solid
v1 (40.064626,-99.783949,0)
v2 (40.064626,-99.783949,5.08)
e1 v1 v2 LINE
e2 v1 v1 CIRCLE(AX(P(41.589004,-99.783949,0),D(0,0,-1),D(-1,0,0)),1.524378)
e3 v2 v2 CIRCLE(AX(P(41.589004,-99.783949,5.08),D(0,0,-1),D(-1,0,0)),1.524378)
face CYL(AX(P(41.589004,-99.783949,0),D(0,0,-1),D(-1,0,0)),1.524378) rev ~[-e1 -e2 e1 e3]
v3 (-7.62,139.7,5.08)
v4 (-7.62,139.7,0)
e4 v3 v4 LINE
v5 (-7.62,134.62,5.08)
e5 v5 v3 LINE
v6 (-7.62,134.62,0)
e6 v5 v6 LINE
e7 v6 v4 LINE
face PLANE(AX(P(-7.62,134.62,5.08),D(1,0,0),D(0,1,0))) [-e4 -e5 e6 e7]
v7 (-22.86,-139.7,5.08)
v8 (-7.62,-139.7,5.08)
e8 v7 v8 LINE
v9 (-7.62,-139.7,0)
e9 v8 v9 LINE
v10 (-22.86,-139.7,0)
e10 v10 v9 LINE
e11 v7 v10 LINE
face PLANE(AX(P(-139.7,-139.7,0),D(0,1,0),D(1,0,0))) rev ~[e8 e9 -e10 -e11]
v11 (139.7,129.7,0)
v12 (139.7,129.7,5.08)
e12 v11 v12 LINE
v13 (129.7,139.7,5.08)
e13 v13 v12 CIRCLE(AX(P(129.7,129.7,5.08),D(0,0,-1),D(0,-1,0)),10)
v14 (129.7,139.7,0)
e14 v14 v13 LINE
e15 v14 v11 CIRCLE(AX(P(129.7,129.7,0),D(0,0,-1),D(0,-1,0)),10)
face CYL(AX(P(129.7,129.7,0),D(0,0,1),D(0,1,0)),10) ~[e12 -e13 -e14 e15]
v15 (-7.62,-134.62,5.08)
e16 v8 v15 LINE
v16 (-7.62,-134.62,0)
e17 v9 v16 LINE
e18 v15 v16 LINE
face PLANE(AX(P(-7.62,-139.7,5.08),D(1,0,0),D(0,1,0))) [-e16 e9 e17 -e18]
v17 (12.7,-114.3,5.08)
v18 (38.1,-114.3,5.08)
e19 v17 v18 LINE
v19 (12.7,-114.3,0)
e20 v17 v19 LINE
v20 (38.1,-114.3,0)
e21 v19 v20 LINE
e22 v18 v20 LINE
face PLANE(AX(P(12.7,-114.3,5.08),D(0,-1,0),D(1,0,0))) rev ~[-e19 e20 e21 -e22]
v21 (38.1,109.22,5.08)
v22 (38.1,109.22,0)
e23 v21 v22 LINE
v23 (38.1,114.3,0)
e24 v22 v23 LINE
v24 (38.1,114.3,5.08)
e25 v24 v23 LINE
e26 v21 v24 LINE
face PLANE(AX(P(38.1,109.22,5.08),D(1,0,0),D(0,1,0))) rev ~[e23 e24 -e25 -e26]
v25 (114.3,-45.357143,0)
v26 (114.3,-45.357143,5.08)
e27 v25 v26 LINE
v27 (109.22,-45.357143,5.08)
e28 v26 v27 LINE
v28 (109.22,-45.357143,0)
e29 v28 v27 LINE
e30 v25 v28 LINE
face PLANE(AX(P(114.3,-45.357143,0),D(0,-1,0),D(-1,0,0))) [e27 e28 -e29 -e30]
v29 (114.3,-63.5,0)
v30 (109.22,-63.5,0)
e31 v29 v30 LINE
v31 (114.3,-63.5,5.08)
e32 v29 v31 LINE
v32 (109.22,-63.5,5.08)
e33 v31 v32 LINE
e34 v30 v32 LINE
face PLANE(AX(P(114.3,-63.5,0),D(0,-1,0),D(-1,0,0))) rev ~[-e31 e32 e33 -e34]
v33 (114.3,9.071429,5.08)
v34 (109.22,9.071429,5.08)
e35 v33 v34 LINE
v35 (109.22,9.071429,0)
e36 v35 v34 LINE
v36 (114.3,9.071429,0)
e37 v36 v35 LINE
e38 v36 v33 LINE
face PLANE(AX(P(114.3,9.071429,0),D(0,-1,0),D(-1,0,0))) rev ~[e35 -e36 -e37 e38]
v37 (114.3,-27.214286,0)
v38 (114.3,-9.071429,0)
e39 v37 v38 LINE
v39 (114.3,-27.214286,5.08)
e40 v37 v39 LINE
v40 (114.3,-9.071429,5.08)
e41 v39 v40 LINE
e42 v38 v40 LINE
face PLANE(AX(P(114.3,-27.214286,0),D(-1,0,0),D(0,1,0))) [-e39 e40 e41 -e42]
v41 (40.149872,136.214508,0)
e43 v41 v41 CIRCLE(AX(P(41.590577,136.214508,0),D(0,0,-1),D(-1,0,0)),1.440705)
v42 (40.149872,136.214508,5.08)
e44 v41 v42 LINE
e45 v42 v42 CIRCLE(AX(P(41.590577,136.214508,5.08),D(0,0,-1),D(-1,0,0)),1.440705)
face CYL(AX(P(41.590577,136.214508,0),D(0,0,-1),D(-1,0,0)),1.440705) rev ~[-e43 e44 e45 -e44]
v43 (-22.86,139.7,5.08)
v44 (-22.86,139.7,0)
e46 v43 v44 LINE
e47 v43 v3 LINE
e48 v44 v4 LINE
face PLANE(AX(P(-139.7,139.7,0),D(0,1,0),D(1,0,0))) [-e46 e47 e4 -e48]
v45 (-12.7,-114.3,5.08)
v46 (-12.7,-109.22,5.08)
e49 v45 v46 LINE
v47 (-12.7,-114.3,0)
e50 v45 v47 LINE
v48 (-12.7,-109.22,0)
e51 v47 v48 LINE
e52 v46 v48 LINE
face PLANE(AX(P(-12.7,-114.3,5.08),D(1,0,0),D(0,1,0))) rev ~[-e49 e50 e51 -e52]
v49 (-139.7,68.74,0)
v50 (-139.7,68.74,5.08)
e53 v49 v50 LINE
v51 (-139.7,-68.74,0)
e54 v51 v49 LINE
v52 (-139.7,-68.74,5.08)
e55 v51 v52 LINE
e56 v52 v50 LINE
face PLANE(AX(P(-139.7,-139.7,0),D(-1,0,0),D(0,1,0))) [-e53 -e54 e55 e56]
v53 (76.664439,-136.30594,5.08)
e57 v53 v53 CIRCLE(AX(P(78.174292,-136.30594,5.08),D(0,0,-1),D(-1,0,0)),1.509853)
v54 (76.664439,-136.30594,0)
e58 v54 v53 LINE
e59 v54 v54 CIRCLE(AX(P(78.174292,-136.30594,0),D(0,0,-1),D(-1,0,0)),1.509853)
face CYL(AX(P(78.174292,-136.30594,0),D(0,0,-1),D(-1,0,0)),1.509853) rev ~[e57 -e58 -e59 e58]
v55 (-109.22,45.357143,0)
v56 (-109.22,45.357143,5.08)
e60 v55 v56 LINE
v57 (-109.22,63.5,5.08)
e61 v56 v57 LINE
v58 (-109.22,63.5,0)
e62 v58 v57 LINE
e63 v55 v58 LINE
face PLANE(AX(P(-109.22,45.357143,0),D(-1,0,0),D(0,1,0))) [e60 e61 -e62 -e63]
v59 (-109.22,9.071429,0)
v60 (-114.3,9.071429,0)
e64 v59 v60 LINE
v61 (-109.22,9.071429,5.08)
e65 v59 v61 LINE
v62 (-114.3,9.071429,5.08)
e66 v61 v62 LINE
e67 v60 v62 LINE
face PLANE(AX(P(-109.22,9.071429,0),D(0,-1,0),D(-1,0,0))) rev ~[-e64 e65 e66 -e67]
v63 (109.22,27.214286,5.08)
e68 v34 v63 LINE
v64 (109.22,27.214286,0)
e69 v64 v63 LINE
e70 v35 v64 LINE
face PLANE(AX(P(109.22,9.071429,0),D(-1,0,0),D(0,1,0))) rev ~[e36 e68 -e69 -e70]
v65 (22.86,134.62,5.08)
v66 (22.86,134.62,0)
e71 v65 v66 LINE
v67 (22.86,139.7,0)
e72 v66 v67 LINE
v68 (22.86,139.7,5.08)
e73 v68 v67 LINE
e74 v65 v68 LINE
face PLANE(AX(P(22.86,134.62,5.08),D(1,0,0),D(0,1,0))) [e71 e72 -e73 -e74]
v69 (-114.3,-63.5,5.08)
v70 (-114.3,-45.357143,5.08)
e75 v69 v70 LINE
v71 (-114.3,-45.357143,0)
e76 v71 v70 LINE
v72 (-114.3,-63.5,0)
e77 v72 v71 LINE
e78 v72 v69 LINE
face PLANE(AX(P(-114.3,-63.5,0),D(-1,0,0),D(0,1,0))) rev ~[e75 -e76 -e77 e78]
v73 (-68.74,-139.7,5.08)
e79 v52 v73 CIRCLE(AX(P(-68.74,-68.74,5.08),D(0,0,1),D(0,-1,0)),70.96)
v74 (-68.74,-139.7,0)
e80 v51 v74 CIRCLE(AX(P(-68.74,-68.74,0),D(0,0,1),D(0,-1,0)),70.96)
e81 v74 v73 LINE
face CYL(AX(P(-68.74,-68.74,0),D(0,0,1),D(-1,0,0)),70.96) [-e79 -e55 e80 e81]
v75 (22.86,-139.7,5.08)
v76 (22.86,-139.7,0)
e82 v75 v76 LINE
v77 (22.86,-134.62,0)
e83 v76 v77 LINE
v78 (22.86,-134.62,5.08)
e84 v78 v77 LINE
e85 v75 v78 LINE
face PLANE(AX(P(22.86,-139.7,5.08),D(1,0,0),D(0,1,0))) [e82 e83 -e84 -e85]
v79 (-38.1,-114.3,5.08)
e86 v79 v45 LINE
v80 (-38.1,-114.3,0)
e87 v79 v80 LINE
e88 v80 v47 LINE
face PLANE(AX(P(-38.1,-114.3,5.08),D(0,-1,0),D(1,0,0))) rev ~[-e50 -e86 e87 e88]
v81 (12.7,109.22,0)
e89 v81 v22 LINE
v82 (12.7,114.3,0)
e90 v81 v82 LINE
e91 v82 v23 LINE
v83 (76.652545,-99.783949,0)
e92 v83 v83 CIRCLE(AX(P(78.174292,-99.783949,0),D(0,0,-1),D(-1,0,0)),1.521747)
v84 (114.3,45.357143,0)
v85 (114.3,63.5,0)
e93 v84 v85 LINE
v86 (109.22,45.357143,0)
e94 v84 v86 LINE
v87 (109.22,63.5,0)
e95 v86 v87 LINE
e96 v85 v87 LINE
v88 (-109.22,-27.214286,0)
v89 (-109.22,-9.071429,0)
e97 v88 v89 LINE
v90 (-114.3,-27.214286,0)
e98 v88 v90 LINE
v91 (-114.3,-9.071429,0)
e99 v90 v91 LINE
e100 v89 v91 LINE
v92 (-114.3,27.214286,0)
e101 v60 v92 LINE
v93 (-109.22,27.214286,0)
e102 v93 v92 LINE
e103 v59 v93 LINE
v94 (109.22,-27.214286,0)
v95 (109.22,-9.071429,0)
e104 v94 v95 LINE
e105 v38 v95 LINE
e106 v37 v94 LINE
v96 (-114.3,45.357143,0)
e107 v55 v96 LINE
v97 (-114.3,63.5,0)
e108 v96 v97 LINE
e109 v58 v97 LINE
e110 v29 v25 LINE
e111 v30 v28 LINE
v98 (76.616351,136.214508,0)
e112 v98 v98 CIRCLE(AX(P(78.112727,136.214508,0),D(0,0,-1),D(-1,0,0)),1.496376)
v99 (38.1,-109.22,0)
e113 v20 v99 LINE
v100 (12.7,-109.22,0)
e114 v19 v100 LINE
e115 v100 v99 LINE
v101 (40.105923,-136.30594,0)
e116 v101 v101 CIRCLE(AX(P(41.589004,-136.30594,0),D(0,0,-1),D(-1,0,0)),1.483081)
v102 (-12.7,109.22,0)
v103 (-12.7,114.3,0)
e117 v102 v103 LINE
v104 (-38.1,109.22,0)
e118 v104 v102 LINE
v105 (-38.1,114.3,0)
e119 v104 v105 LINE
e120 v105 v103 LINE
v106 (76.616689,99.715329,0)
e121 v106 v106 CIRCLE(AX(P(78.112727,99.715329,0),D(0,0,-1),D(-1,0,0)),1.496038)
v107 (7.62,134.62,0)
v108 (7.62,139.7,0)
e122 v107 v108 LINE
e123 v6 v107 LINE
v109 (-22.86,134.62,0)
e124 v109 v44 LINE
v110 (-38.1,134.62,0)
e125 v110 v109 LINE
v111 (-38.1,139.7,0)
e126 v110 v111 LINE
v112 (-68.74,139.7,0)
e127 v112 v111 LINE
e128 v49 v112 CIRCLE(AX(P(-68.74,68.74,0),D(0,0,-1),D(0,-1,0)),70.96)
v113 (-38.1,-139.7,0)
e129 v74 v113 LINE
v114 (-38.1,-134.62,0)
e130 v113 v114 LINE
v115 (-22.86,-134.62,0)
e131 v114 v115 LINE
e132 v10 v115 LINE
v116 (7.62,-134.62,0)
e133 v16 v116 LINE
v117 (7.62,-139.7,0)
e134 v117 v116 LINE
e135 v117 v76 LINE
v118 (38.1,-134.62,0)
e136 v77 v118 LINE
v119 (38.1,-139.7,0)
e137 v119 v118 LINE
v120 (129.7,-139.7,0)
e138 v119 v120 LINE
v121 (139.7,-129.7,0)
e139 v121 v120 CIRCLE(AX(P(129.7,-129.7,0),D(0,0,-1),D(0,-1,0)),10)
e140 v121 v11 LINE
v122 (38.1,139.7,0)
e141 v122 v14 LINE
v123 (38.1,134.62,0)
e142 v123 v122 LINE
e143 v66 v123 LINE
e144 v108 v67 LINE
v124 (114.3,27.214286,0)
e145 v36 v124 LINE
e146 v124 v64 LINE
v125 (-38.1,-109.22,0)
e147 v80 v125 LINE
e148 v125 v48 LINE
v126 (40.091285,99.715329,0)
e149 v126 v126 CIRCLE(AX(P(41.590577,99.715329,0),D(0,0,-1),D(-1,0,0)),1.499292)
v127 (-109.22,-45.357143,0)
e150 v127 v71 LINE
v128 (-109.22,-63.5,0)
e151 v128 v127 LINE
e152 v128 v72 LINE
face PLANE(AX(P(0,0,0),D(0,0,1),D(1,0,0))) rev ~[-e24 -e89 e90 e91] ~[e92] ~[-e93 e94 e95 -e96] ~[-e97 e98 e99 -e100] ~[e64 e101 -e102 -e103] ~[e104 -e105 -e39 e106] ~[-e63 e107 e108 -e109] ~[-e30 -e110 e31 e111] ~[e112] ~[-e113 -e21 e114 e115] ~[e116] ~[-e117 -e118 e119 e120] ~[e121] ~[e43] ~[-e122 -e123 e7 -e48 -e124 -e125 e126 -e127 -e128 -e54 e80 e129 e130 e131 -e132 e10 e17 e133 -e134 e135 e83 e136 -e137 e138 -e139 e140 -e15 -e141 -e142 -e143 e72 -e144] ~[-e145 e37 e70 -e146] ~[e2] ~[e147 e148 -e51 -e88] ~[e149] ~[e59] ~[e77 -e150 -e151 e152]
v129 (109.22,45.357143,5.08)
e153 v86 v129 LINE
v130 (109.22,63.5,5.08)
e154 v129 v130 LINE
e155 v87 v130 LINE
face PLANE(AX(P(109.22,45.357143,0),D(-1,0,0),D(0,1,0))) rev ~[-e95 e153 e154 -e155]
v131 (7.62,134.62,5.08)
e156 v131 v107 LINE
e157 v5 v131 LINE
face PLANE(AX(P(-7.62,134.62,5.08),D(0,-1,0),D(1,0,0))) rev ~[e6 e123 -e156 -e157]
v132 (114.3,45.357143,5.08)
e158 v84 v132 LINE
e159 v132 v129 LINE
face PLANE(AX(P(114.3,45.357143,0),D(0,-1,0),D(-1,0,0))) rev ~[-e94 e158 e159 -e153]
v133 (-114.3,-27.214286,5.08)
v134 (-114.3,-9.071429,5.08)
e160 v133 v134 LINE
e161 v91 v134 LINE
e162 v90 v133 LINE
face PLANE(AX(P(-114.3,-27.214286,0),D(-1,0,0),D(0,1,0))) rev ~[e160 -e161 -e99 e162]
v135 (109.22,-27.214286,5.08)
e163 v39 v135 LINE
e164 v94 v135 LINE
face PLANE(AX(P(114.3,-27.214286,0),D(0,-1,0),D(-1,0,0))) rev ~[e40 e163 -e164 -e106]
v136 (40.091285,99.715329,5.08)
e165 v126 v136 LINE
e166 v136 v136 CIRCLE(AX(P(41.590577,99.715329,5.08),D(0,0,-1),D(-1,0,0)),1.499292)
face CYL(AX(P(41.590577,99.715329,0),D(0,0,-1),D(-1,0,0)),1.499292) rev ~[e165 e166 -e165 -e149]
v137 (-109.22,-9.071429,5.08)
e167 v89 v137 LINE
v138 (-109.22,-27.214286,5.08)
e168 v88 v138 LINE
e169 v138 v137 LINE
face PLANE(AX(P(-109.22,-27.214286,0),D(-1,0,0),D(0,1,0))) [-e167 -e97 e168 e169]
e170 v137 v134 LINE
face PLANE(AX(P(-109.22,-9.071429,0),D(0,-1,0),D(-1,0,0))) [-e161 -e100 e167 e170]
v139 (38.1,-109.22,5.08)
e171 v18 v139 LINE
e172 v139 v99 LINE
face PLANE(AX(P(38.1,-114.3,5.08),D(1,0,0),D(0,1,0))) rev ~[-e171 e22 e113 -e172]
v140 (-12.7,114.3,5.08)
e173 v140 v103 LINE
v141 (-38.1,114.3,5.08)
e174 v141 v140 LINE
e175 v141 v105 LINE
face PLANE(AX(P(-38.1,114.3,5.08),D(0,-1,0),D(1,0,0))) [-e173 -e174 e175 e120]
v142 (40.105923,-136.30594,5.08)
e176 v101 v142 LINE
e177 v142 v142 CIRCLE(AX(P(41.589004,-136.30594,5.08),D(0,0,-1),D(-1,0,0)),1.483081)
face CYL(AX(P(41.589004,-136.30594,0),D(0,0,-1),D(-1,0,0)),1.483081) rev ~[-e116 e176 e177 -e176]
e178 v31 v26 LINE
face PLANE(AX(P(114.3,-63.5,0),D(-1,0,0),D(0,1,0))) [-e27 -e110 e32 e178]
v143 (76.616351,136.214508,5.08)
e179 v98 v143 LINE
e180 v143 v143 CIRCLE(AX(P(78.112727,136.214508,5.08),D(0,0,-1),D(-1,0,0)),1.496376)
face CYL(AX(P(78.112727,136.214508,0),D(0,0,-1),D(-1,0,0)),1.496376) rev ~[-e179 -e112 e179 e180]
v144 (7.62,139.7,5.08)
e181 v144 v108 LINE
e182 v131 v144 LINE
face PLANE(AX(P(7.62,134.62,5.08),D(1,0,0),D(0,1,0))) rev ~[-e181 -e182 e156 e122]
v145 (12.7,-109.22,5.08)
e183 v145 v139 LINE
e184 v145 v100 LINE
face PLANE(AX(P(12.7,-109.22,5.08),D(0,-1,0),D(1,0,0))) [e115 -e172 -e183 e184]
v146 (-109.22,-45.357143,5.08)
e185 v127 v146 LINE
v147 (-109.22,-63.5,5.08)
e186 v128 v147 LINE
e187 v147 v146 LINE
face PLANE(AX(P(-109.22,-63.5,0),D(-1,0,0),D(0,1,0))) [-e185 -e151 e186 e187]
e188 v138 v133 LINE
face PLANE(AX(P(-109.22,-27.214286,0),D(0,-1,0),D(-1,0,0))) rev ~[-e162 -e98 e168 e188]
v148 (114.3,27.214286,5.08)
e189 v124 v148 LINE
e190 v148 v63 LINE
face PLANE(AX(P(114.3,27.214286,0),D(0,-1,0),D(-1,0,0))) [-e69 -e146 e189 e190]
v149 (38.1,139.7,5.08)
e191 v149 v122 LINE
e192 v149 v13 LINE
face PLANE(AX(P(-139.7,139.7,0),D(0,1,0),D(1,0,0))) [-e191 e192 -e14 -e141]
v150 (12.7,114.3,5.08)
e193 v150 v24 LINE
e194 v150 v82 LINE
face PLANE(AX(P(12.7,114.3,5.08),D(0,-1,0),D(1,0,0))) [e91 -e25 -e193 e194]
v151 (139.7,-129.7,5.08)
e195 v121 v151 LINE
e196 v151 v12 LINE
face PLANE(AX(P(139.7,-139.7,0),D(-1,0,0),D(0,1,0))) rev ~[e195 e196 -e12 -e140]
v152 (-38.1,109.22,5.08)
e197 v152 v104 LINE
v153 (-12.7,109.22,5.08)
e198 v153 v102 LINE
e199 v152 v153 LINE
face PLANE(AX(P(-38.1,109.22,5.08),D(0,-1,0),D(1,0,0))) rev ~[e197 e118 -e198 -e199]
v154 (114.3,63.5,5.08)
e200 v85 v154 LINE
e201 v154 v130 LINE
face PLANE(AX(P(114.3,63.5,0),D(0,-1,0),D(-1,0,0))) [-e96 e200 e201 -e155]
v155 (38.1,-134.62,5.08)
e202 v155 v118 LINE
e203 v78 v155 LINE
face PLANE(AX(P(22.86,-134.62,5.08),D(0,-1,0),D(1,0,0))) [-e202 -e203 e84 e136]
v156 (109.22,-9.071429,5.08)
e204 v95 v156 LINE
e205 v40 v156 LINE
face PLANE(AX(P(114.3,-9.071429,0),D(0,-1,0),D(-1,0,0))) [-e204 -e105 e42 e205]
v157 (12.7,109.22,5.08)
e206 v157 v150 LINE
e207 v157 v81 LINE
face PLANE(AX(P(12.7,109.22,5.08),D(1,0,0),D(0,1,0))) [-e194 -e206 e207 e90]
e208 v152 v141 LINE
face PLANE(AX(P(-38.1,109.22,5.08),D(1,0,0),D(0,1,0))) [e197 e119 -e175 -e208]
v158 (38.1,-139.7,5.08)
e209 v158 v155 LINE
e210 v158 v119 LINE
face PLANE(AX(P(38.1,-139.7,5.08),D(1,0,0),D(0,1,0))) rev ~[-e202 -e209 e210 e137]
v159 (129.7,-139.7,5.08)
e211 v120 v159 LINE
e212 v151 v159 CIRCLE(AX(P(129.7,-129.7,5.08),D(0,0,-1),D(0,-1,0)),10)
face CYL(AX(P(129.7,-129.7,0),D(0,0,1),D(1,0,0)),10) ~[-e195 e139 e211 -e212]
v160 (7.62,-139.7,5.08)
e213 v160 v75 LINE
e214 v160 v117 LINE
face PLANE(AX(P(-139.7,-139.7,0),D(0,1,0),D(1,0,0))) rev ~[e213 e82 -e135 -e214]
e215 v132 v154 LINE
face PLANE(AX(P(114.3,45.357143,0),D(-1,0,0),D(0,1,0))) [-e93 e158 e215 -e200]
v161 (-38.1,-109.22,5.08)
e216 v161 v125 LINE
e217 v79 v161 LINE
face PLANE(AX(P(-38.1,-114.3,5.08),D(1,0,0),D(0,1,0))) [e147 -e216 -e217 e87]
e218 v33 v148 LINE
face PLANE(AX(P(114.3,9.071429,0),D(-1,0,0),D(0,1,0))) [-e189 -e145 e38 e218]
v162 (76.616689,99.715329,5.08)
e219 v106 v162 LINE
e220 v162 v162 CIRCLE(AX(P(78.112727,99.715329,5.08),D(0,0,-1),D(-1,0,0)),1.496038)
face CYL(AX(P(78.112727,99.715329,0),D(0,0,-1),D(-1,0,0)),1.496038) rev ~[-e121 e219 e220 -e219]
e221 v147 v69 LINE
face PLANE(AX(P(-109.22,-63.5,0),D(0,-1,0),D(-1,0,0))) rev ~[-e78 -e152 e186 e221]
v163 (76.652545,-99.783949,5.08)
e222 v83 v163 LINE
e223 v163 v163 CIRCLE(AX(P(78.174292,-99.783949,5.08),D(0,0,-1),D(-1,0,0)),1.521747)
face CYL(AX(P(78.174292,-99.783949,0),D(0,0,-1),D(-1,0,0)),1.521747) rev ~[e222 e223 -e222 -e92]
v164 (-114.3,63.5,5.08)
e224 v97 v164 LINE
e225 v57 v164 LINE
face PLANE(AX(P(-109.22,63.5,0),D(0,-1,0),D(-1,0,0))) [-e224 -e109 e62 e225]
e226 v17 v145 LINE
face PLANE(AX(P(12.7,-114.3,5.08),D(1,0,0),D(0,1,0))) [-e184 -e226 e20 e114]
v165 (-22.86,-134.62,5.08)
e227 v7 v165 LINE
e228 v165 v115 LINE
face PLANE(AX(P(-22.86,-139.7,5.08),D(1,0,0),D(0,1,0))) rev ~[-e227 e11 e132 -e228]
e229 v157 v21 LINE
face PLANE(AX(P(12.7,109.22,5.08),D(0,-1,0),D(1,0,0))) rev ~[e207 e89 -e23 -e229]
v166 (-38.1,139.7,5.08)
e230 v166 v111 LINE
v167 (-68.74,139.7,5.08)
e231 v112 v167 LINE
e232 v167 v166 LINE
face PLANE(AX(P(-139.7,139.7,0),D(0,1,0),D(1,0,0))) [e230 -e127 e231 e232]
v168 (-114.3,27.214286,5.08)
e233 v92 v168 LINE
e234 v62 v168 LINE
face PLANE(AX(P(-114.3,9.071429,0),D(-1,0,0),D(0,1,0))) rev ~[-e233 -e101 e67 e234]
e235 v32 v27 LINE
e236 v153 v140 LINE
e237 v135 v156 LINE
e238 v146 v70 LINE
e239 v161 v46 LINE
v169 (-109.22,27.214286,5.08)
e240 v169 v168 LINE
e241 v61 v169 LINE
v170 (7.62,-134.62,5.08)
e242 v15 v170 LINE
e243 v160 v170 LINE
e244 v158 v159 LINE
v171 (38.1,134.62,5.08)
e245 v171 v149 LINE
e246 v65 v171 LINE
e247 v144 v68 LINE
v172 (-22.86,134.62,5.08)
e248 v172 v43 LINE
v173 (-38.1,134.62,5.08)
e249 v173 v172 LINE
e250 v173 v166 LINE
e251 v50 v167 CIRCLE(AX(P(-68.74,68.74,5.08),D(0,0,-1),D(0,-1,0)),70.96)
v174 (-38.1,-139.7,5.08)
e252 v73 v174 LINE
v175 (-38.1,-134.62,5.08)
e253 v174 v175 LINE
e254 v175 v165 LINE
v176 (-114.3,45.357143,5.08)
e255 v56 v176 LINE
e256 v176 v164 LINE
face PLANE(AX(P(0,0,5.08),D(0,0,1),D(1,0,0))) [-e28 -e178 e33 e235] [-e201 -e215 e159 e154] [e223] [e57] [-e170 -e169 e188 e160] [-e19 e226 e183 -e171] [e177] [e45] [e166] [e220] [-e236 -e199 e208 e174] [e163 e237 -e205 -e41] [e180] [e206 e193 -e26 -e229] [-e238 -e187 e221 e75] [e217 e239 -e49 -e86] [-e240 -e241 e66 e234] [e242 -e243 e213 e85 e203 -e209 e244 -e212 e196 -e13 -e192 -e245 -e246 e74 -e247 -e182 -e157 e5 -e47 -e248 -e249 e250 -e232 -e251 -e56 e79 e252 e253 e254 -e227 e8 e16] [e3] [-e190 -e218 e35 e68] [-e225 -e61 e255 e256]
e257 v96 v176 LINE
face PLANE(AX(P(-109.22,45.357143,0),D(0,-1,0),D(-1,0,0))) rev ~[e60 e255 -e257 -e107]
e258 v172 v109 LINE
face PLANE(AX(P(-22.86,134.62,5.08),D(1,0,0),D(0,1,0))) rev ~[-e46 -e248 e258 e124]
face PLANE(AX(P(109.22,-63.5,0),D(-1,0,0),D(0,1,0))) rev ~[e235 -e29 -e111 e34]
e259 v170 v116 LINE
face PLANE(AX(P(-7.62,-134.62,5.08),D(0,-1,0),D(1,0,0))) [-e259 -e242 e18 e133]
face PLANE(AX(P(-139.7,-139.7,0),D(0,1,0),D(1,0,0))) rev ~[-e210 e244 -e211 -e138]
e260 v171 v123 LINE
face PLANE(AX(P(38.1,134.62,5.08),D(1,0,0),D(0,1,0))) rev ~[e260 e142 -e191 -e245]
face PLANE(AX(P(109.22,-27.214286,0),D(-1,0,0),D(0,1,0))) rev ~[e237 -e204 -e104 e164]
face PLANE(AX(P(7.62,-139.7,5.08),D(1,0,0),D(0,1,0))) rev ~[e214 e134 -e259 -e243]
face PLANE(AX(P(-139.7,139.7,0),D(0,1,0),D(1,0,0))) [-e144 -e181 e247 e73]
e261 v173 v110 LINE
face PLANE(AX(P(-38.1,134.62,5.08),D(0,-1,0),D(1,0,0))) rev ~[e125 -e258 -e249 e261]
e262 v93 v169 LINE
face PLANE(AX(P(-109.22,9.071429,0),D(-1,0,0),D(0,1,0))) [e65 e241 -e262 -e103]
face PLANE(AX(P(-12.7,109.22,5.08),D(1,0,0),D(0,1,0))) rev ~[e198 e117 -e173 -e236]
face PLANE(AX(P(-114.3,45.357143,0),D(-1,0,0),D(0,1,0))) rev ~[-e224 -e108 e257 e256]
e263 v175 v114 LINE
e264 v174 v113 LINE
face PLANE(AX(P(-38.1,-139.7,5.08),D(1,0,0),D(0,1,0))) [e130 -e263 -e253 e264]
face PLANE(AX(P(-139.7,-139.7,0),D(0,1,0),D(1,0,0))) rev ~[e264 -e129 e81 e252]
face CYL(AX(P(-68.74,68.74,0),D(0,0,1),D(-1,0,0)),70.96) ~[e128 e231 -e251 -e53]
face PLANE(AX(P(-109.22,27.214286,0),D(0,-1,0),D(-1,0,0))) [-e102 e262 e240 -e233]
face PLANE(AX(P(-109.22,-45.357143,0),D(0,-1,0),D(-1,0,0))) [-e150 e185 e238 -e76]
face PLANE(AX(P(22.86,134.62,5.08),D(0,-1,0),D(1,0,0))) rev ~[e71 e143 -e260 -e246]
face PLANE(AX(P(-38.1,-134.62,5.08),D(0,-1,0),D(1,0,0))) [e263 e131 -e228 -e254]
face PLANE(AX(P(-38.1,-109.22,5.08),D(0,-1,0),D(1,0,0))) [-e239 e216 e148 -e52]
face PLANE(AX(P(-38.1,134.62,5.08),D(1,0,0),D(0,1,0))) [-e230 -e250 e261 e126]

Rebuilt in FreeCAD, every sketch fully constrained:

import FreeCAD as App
import Part
import Sketcher
from FreeCAD import Vector
Q = App.Units.Quantity


def edges_at(feature, points):
    """Names of the edges that pass closest to the given points."""
    edges = feature.Shape.Edges
    near = lambda p: min(range(len(edges)), key=lambda i: edges[i].distToShape(Part.Vertex(*p))[0])
    return sorted({f"Edge{near(p) + 1}" for p in points})

doc = App.newDocument("Part")
body = doc.addObject("PartDesign::Body", "Body")

# Sketch on XY plane
sketch1 = body.newObject("Sketcher::SketchObject", "Sketch")
sketch1.AttachmentSupport = (doc.getObject("XY_Plane"), [""])
sketch1.MapMode = "FlatFace"
sketch1.addGeometry([
    Part.LineSegment(Vector(-139.7, 139.7, 0), Vector(-139.7, -139.7, 0)),
    Part.LineSegment(Vector(-139.7, -139.7, 0), Vector(139.7, -139.7, 0)),
    Part.LineSegment(Vector(139.7, -139.7, 0), Vector(139.7, 139.7, 0)),
    Part.LineSegment(Vector(139.7, 139.7, 0), Vector(-139.7, 139.7, 0)),
], False)
sketch1.addConstraint([
    Sketcher.Constraint("Coincident", 0, 2, 1, 1),
    Sketcher.Constraint("Coincident", 1, 2, 2, 1),
    Sketcher.Constraint("Coincident", 2, 2, 3, 1),
    Sketcher.Constraint("Coincident", 3, 2, 0, 1),
    Sketcher.Constraint("Vertical", 0),
    Sketcher.Constraint("Horizontal", 1),
    Sketcher.Constraint("Vertical", 2),
    Sketcher.Constraint("Horizontal", 3),
    Sketcher.Constraint("Symmetric", 0, 2, 2, 2, -1, 1),
    Sketcher.Constraint("Equal", 3, 0),
    Sketcher.Constraint("DistanceX", 1, 1, 1, 2, Q("11 in")),
])
pad1 = body.newObject("PartDesign::Pad", "Pad")
pad1.Profile = sketch1
pad1.Length = Q("0.2 in")
doc.recompute()

fillet = body.newObject("PartDesign::Fillet", "Fillet")
fillet.Base = (pad1, edges_at(pad1, [(-139.7, 139.7, 2.54)]))
fillet.Radius = 70.96
doc.recompute()

fillet2 = body.newObject("PartDesign::Fillet", "Fillet001")
fillet2.Base = (fillet, edges_at(fillet, [(-139.7, -139.7, 2.54)]))
fillet2.Radius = 70.96
doc.recompute()

fillet3 = body.newObject("PartDesign::Fillet", "Fillet002")
fillet3.Base = (fillet2, edges_at(fillet2, [(139.7, 139.7, 2.54)]))
fillet3.Radius = 10
doc.recompute()

fillet4 = body.newObject("PartDesign::Fillet", "Fillet003")
fillet4.Base = (fillet3, edges_at(fillet3, [(139.7, -139.7, 2.54)]))
fillet4.Radius = 10

# Sketch on XY plane
sketch2 = body.newObject("Sketcher::SketchObject", "Sketch001")
sketch2.AttachmentSupport = (doc.getObject("XY_Plane"), [""])
sketch2.MapMode = "FlatFace"
sketch2.AttachmentOffset = App.Placement(Vector(0, 0, 0.2 * 25.4), App.Rotation())
sketch2.addGeometry([
    Part.LineSegment(Vector(-38.1, -109.22, 0), Vector(-38.1, -114.3, 0)),  # 0
    Part.LineSegment(Vector(-38.1, -114.3, 0), Vector(-12.7, -114.3, 0)),  # 1
    Part.LineSegment(Vector(-12.7, -114.3, 0), Vector(-12.7, -109.22, 0)),  # 2
    Part.LineSegment(Vector(-12.7, -109.22, 0), Vector(-38.1, -109.22, 0)),  # 3
    Part.LineSegment(Vector(12.7, -109.22, 0), Vector(12.7, -114.3, 0)),  # 4
    Part.LineSegment(Vector(12.7, -114.3, 0), Vector(38.1, -114.3, 0)),  # 5
    Part.LineSegment(Vector(38.1, -114.3, 0), Vector(38.1, -109.22, 0)),  # 6
    Part.LineSegment(Vector(38.1, -109.22, 0), Vector(12.7, -109.22, 0)),  # 7
], False)
sketch2.addConstraint([
    Sketcher.Constraint("Coincident", 0, 2, 1, 1),
    Sketcher.Constraint("Coincident", 1, 2, 2, 1),
    Sketcher.Constraint("Coincident", 2, 2, 3, 1),
    Sketcher.Constraint("Coincident", 3, 2, 0, 1),
    Sketcher.Constraint("Coincident", 4, 2, 5, 1),
    Sketcher.Constraint("Coincident", 5, 2, 6, 1),
    Sketcher.Constraint("Coincident", 6, 2, 7, 1),
    Sketcher.Constraint("Coincident", 7, 2, 4, 1),
    Sketcher.Constraint("Vertical", 0),
    Sketcher.Constraint("Horizontal", 1),
    Sketcher.Constraint("Vertical", 2),
    Sketcher.Constraint("Horizontal", 3),
    Sketcher.Constraint("Vertical", 4),
    Sketcher.Constraint("Horizontal", 5),
    Sketcher.Constraint("Vertical", 6),
    Sketcher.Constraint("Horizontal", 7),
    Sketcher.Constraint("Symmetric", 1, 2, 4, 2, -2),
    Sketcher.Constraint("Symmetric", 3, 2, 6, 2, -2),
    Sketcher.Constraint("DistanceX", 1, 1, 1, 2, Q("1 in")),
    Sketcher.Constraint("DistanceY", 0, 2, 0, 1, Q("0.2 in")),
    Sketcher.Constraint("DistanceX", 1, 2, 4, 2, Q("1 in")),
    Sketcher.Constraint("DistanceY", 0, 2, -1, 1, Q("4.5 in")),
])
pocket1 = body.newObject("PartDesign::Pocket", "Pocket")
pocket1.Profile = sketch2
pocket1.Length = Q("0.3 in")

# Sketch on XY plane
sketch3 = body.newObject("Sketcher::SketchObject", "Sketch002")
sketch3.AttachmentSupport = (doc.getObject("XY_Plane"), [""])
sketch3.MapMode = "FlatFace"
sketch3.AttachmentOffset = App.Placement(Vector(0, 0, 0.2 * 25.4), App.Rotation())
sketch3.addGeometry([
    Part.LineSegment(Vector(-38.1, -134.62, 0), Vector(-38.1, -139.7, 0)),  # 0
    Part.LineSegment(Vector(-38.1, -139.7, 0), Vector(-22.86, -139.7, 0)),  # 1
    Part.LineSegment(Vector(-22.86, -139.7, 0), Vector(-22.86, -134.62, 0)),  # 2
    Part.LineSegment(Vector(-22.86, -134.62, 0), Vector(-38.1, -134.62, 0)),  # 3
    Part.LineSegment(Vector(-7.62, -134.62, 0), Vector(-7.62, -139.7, 0)),  # 4
    Part.LineSegment(Vector(-7.62, -139.7, 0), Vector(7.62, -139.7, 0)),  # 5
    Part.LineSegment(Vector(7.62, -139.7, 0), Vector(7.62, -134.62, 0)),  # 6
    Part.LineSegment(Vector(7.62, -134.62, 0), Vector(-7.62, -134.62, 0)),  # 7
    Part.LineSegment(Vector(22.86, -134.62, 0), Vector(22.86, -139.7, 0)),  # 8
    Part.LineSegment(Vector(22.86, -139.7, 0), Vector(38.1, -139.7, 0)),  # 9
    Part.LineSegment(Vector(38.1, -139.7, 0), Vector(38.1, -134.62, 0)),  # 10
    Part.LineSegment(Vector(38.1, -134.62, 0), Vector(22.86, -134.62, 0)),  # 11
], False)
sketch3.addConstraint([
    Sketcher.Constraint("Coincident", 0, 2, 1, 1),
    Sketcher.Constraint("Coincident", 1, 2, 2, 1),
    Sketcher.Constraint("Coincident", 2, 2, 3, 1),
    Sketcher.Constraint("Coincident", 3, 2, 0, 1),
    Sketcher.Constraint("Coincident", 4, 2, 5, 1),
    Sketcher.Constraint("Coincident", 5, 2, 6, 1),
    Sketcher.Constraint("Coincident", 6, 2, 7, 1),
    Sketcher.Constraint("Coincident", 7, 2, 4, 1),
    Sketcher.Constraint("Coincident", 8, 2, 9, 1),
    Sketcher.Constraint("Coincident", 9, 2, 10, 1),
    Sketcher.Constraint("Coincident", 10, 2, 11, 1),
    Sketcher.Constraint("Coincident", 11, 2, 8, 1),
    Sketcher.Constraint("Vertical", 0),
    Sketcher.Constraint("Horizontal", 1),
    Sketcher.Constraint("Vertical", 2),
    Sketcher.Constraint("Horizontal", 3),
    Sketcher.Constraint("Vertical", 4),
    Sketcher.Constraint("Horizontal", 5),
    Sketcher.Constraint("Vertical", 6),
    Sketcher.Constraint("Horizontal", 7),
    Sketcher.Constraint("Vertical", 8),
    Sketcher.Constraint("Horizontal", 9),
    Sketcher.Constraint("Vertical", 10),
    Sketcher.Constraint("Horizontal", 11),
    Sketcher.Constraint("Symmetric", 1, 2, 8, 2, -2),
    Sketcher.Constraint("Symmetric", 3, 2, 10, 2, -2),
    Sketcher.Constraint("Horizontal", 1, 2, 4, 2),
    Sketcher.Constraint("Horizontal", 3, 2, 6, 2),
    Sketcher.Constraint("Equal", 3, 5),
    Sketcher.Constraint("DistanceX", 1, 1, 1, 2, Q("0.6 in")),
    Sketcher.Constraint("DistanceY", 0, 2, 0, 1, Q("0.2 in")),
    Sketcher.Constraint("DistanceX", 0, 2, -1, 1, Q("1.5 in")),
    Sketcher.Constraint("DistanceY", 0, 2, -1, 1, Q("5.5 in")),
    Sketcher.Constraint("DistanceX", 4, 2, -1, 1, Q("0.3 in")),
])
pocket2 = body.newObject("PartDesign::Pocket", "Pocket001")
pocket2.Profile = sketch3
pocket2.Length = Q("0.2 in")

# Sketch on XY plane
sketch4 = body.newObject("Sketcher::SketchObject", "Sketch003")
sketch4.AttachmentSupport = (doc.getObject("XY_Plane"), [""])
sketch4.MapMode = "FlatFace"
sketch4.AttachmentOffset = App.Placement(Vector(0, 0, 0.2 * 25.4), App.Rotation())
sketch4.addGeometry([
    Part.LineSegment(Vector(-38.1, 114.3, 0), Vector(-38.1, 109.22, 0)),  # 0
    Part.LineSegment(Vector(-38.1, 109.22, 0), Vector(-12.7, 109.22, 0)),  # 1
    Part.LineSegment(Vector(-12.7, 109.22, 0), Vector(-12.7, 114.3, 0)),  # 2
    Part.LineSegment(Vector(-12.7, 114.3, 0), Vector(-38.1, 114.3, 0)),  # 3
    Part.LineSegment(Vector(12.7, 114.3, 0), Vector(12.7, 109.22, 0)),  # 4
    Part.LineSegment(Vector(12.7, 109.22, 0), Vector(38.1, 109.22, 0)),  # 5
    Part.LineSegment(Vector(38.1, 109.22, 0), Vector(38.1, 114.3, 0)),  # 6
    Part.LineSegment(Vector(38.1, 114.3, 0), Vector(12.7, 114.3, 0)),  # 7
    Part.LineSegment(Vector(-38.1, 139.7, 0), Vector(-38.1, 134.62, 0)),  # 8
    Part.LineSegment(Vector(-38.1, 134.62, 0), Vector(-22.86, 134.62, 0)),  # 9
    Part.LineSegment(Vector(-22.86, 134.62, 0), Vector(-22.86, 139.7, 0)),  # 10
    Part.LineSegment(Vector(-22.86, 139.7, 0), Vector(-38.1, 139.7, 0)),  # 11
    Part.LineSegment(Vector(-7.62, 139.7, 0), Vector(-7.62, 134.62, 0)),  # 12
    Part.LineSegment(Vector(-7.62, 134.62, 0), Vector(7.62, 134.62, 0)),  # 13
    Part.LineSegment(Vector(7.62, 134.62, 0), Vector(7.62, 139.7, 0)),  # 14
    Part.LineSegment(Vector(7.62, 139.7, 0), Vector(-7.62, 139.7, 0)),  # 15
    Part.LineSegment(Vector(22.86, 139.7, 0), Vector(22.86, 134.62, 0)),  # 16
    Part.LineSegment(Vector(22.86, 134.62, 0), Vector(38.1, 134.62, 0)),  # 17
    Part.LineSegment(Vector(38.1, 134.62, 0), Vector(38.1, 139.7, 0)),  # 18
    Part.LineSegment(Vector(38.1, 139.7, 0), Vector(22.86, 139.7, 0)),  # 19
], False)
sketch4.addConstraint([
    Sketcher.Constraint("Coincident", 0, 2, 1, 1),
    Sketcher.Constraint("Coincident", 1, 2, 2, 1),
    Sketcher.Constraint("Coincident", 2, 2, 3, 1),
    Sketcher.Constraint("Coincident", 3, 2, 0, 1),
    Sketcher.Constraint("Coincident", 4, 2, 5, 1),
    Sketcher.Constraint("Coincident", 5, 2, 6, 1),
    Sketcher.Constraint("Coincident", 6, 2, 7, 1),
    Sketcher.Constraint("Coincident", 7, 2, 4, 1),
    Sketcher.Constraint("Coincident", 8, 2, 9, 1),
    Sketcher.Constraint("Coincident", 9, 2, 10, 1),
    Sketcher.Constraint("Coincident", 10, 2, 11, 1),
    Sketcher.Constraint("Coincident", 11, 2, 8, 1),
    Sketcher.Constraint("Coincident", 12, 2, 13, 1),
    Sketcher.Constraint("Coincident", 13, 2, 14, 1),
    Sketcher.Constraint("Coincident", 14, 2, 15, 1),
    Sketcher.Constraint("Coincident", 15, 2, 12, 1),
    Sketcher.Constraint("Coincident", 16, 2, 17, 1),
    Sketcher.Constraint("Coincident", 17, 2, 18, 1),
    Sketcher.Constraint("Coincident", 18, 2, 19, 1),
    Sketcher.Constraint("Coincident", 19, 2, 16, 1),
    Sketcher.Constraint("Vertical", 0),
    Sketcher.Constraint("Horizontal", 1),
    Sketcher.Constraint("Vertical", 2),
    Sketcher.Constraint("Horizontal", 3),
    Sketcher.Constraint("Vertical", 4),
    Sketcher.Constraint("Horizontal", 5),
    Sketcher.Constraint("Vertical", 6),
    Sketcher.Constraint("Horizontal", 7),
    Sketcher.Constraint("Vertical", 8),
    Sketcher.Constraint("Horizontal", 9),
    Sketcher.Constraint("Vertical", 10),
    Sketcher.Constraint("Horizontal", 11),
    Sketcher.Constraint("Vertical", 12),
    Sketcher.Constraint("Horizontal", 13),
    Sketcher.Constraint("Vertical", 14),
    Sketcher.Constraint("Horizontal", 15),
    Sketcher.Constraint("Vertical", 16),
    Sketcher.Constraint("Horizontal", 17),
    Sketcher.Constraint("Vertical", 18),
    Sketcher.Constraint("Horizontal", 19),
    Sketcher.Constraint("Symmetric", 1, 2, 4, 2, -2),
    Sketcher.Constraint("Symmetric", 3, 2, 6, 2, -2),
    Sketcher.Constraint("Symmetric", 9, 2, 16, 2, -2),
    Sketcher.Constraint("Symmetric", 11, 2, 18, 2, -2),
    Sketcher.Constraint("Horizontal", 9, 2, 12, 2),
    Sketcher.Constraint("Horizontal", 11, 2, 14, 2),
    Sketcher.Constraint("Vertical", 3, 2, 8, 2),
    Sketcher.Constraint("Equal", 11, 13),
    Sketcher.Constraint("Equal", 6, 8),
    Sketcher.Constraint("DistanceX", 1, 1, 1, 2, Q("1 in")),
    Sketcher.Constraint("DistanceX", 9, 1, 9, 2, Q("0.6 in")),
    Sketcher.Constraint("DistanceY", 0, 2, 0, 1, Q("0.2 in")),
    Sketcher.Constraint("DistanceX", 1, 2, 4, 2, Q("1 in")),
    Sketcher.Constraint("DistanceY", 0, 2, 8, 2, Q("1 in")),
    Sketcher.Constraint("DistanceY", -1, 1, 0, 2, Q("4.3 in")),
    Sketcher.Constraint("DistanceX", 12, 2, -1, 1, Q("0.3 in")),
])
pocket3 = body.newObject("PartDesign::Pocket", "Pocket002")
pocket3.Profile = sketch4
pocket3.Length = Q("0.2 in")

# Sketch on XY plane
sketch5 = body.newObject("Sketcher::SketchObject", "Sketch004")
sketch5.AttachmentSupport = (doc.getObject("XY_Plane"), [""])
sketch5.MapMode = "FlatFace"
sketch5.addGeometry([
    Part.LineSegment(Vector(-109.22, -45.357143, 0), Vector(-109.22, -63.5, 0)),  # 0
    Part.LineSegment(Vector(-109.22, -63.5, 0), Vector(-114.3, -63.5, 0)),  # 1
    Part.LineSegment(Vector(-114.3, -63.5, 0), Vector(-114.3, -45.357143, 0)),  # 2
    Part.LineSegment(Vector(-114.3, -45.357143, 0), Vector(-109.22, -45.357143, 0)),  # 3
    Part.LineSegment(Vector(-109.22, -9.071429, 0), Vector(-109.22, -27.214286, 0)),  # 4
    Part.LineSegment(Vector(-109.22, -27.214286, 0), Vector(-114.3, -27.214286, 0)),  # 5
    Part.LineSegment(Vector(-114.3, -27.214286, 0), Vector(-114.3, -9.071429, 0)),  # 6
    Part.LineSegment(Vector(-114.3, -9.071429, 0), Vector(-109.22, -9.071429, 0)),  # 7
    Part.LineSegment(Vector(-109.22, 27.214286, 0), Vector(-109.22, 9.071429, 0)),  # 8
    Part.LineSegment(Vector(-109.22, 9.071429, 0), Vector(-114.3, 9.071429, 0)),  # 9
    Part.LineSegment(Vector(-114.3, 9.071429, 0), Vector(-114.3, 27.214286, 0)),  # 10
    Part.LineSegment(Vector(-114.3, 27.214286, 0), Vector(-109.22, 27.214286, 0)),  # 11
    Part.LineSegment(Vector(-109.22, 63.5, 0), Vector(-109.22, 45.357143, 0)),  # 12
    Part.LineSegment(Vector(-109.22, 45.357143, 0), Vector(-114.3, 45.357143, 0)),  # 13
    Part.LineSegment(Vector(-114.3, 45.357143, 0), Vector(-114.3, 63.5, 0)),  # 14
    Part.LineSegment(Vector(-114.3, 63.5, 0), Vector(-109.22, 63.5, 0)),  # 15
    Part.LineSegment(Vector(114.3, -45.357143, 0), Vector(114.3, -63.5, 0)),  # 16
    Part.LineSegment(Vector(114.3, -63.5, 0), Vector(109.22, -63.5, 0)),  # 17
    Part.LineSegment(Vector(109.22, -63.5, 0), Vector(109.22, -45.357143, 0)),  # 18
    Part.LineSegment(Vector(109.22, -45.357143, 0), Vector(114.3, -45.357143, 0)),  # 19
    Part.LineSegment(Vector(114.3, -9.071429, 0), Vector(114.3, -27.214286, 0)),  # 20
    Part.LineSegment(Vector(114.3, -27.214286, 0), Vector(109.22, -27.214286, 0)),  # 21
    Part.LineSegment(Vector(109.22, -27.214286, 0), Vector(109.22, -9.071429, 0)),  # 22
    Part.LineSegment(Vector(109.22, -9.071429, 0), Vector(114.3, -9.071429, 0)),  # 23
    Part.LineSegment(Vector(114.3, 27.214286, 0), Vector(114.3, 9.071429, 0)),  # 24
    Part.LineSegment(Vector(114.3, 9.071429, 0), Vector(109.22, 9.071429, 0)),  # 25
    Part.LineSegment(Vector(109.22, 9.071429, 0), Vector(109.22, 27.214286, 0)),  # 26
    Part.LineSegment(Vector(109.22, 27.214286, 0), Vector(114.3, 27.214286, 0)),  # 27
    Part.LineSegment(Vector(114.3, 63.5, 0), Vector(114.3, 45.357143, 0)),  # 28
    Part.LineSegment(Vector(114.3, 45.357143, 0), Vector(109.22, 45.357143, 0)),  # 29
    Part.LineSegment(Vector(109.22, 45.357143, 0), Vector(109.22, 63.5, 0)),  # 30
    Part.LineSegment(Vector(109.22, 63.5, 0), Vector(114.3, 63.5, 0)),  # 31
], False)
sketch5.addConstraint([
    Sketcher.Constraint("Coincident", 0, 2, 1, 1),
    Sketcher.Constraint("Coincident", 1, 2, 2, 1),
    Sketcher.Constraint("Coincident", 2, 2, 3, 1),
    Sketcher.Constraint("Coincident", 3, 2, 0, 1),
    Sketcher.Constraint("Coincident", 4, 2, 5, 1),
    Sketcher.Constraint("Coincident", 5, 2, 6, 1),
    Sketcher.Constraint("Coincident", 6, 2, 7, 1),
    Sketcher.Constraint("Coincident", 7, 2, 4, 1),
    Sketcher.Constraint("Coincident", 8, 2, 9, 1),
    Sketcher.Constraint("Coincident", 9, 2, 10, 1),
    Sketcher.Constraint("Coincident", 10, 2, 11, 1),
    Sketcher.Constraint("Coincident", 11, 2, 8, 1),
    Sketcher.Constraint("Coincident", 12, 2, 13, 1),
    Sketcher.Constraint("Coincident", 13, 2, 14, 1),
    Sketcher.Constraint("Coincident", 14, 2, 15, 1),
    Sketcher.Constraint("Coincident", 15, 2, 12, 1),
    Sketcher.Constraint("Coincident", 16, 2, 17, 1),
    Sketcher.Constraint("Coincident", 17, 2, 18, 1),
    Sketcher.Constraint("Coincident", 18, 2, 19, 1),
    Sketcher.Constraint("Coincident", 19, 2, 16, 1),
    Sketcher.Constraint("Coincident", 20, 2, 21, 1),
    Sketcher.Constraint("Coincident", 21, 2, 22, 1),
    Sketcher.Constraint("Coincident", 22, 2, 23, 1),
    Sketcher.Constraint("Coincident", 23, 2, 20, 1),
    Sketcher.Constraint("Coincident", 24, 2, 25, 1),
    Sketcher.Constraint("Coincident", 25, 2, 26, 1),
    Sketcher.Constraint("Coincident", 26, 2, 27, 1),
    Sketcher.Constraint("Coincident", 27, 2, 24, 1),
    Sketcher.Constraint("Coincident", 28, 2, 29, 1),
    Sketcher.Constraint("Coincident", 29, 2, 30, 1),
    Sketcher.Constraint("Coincident", 30, 2, 31, 1),
    Sketcher.Constraint("Coincident", 31, 2, 28, 1),
    Sketcher.Constraint("Vertical", 0),
    Sketcher.Constraint("Horizontal", 1),
    Sketcher.Constraint("Vertical", 2),
    Sketcher.Constraint("Horizontal", 3),
    Sketcher.Constraint("Vertical", 4),
    Sketcher.Constraint("Horizontal", 5),
    Sketcher.Constraint("Vertical", 6),
    Sketcher.Constraint("Horizontal", 7),
    Sketcher.Constraint("Vertical", 8),
    Sketcher.Constraint("Horizontal", 9),
    Sketcher.Constraint("Vertical", 10),
    Sketcher.Constraint("Horizontal", 11),
    Sketcher.Constraint("Vertical", 12),
    Sketcher.Constraint("Horizontal", 13),
    Sketcher.Constraint("Vertical", 14),
    Sketcher.Constraint("Horizontal", 15),
    Sketcher.Constraint("Vertical", 16),
    Sketcher.Constraint("Horizontal", 17),
    Sketcher.Constraint("Vertical", 18),
    Sketcher.Constraint("Horizontal", 19),
    Sketcher.Constraint("Vertical", 20),
    Sketcher.Constraint("Horizontal", 21),
    Sketcher.Constraint("Vertical", 22),
    Sketcher.Constraint("Horizontal", 23),
    Sketcher.Constraint("Vertical", 24),
    Sketcher.Constraint("Horizontal", 25),
    Sketcher.Constraint("Vertical", 26),
    Sketcher.Constraint("Horizontal", 27),
    Sketcher.Constraint("Vertical", 28),
    Sketcher.Constraint("Horizontal", 29),
    Sketcher.Constraint("Vertical", 30),
    Sketcher.Constraint("Horizontal", 31),
    Sketcher.Constraint("Symmetric", 14, 2, 16, 2, -1, 1),
    Sketcher.Constraint("Symmetric", 12, 2, 18, 2, -1, 1),
    Sketcher.Constraint("Symmetric", 10, 2, 20, 2, -1, 1),
    Sketcher.Constraint("Symmetric", 8, 2, 22, 2, -1, 1),
    Sketcher.Constraint("Symmetric", 6, 2, 24, 2, -1, 1),
    Sketcher.Constraint("Symmetric", 4, 2, 26, 2, -1, 1),
    Sketcher.Constraint("Symmetric", 2, 2, 28, 2, -1, 1),
    Sketcher.Constraint("Symmetric", 0, 2, 30, 2, -1, 1),
    Sketcher.Constraint("Symmetric", 1, 2, 16, 2, -2),
    Sketcher.Constraint("Symmetric", 3, 2, 18, 2, -2),
    Sketcher.Constraint("Symmetric", 5, 2, 20, 2, -2),
    Sketcher.Constraint("Symmetric", 7, 2, 22, 2, -2),
    Sketcher.Constraint("Vertical", 3, 2, 4, 2),
    Sketcher.Constraint("Vertical", 2, 2, 5, 2),
    Sketcher.Constraint("Equal", 2, 4),
    Sketcher.Constraint("DistanceX", 1, 2, 1, 1, Q("0.2 in")),
    Sketcher.Constraint("DistanceX", 1, 2, 16, 2, Q("9 in")),
    Sketcher.Constraint("DistanceY", 0, 2, -1, 1, Q("2.5 in")),
    Sketcher.Constraint("DistanceY", 0, 2, 0, 1, 18.142857),
    Sketcher.Constraint("DistanceY", 6, 2, -1, 1, 9.071429),
])
pocket4 = body.newObject("PartDesign::Pocket", "Pocket003")
pocket4.Profile = sketch5
pocket4.Length = Q("0.2 in")
pocket4.Reversed = True

# Sketch on XY plane
sketch6 = body.newObject("Sketcher::SketchObject", "Sketch005")
sketch6.AttachmentSupport = (doc.getObject("XY_Plane"), [""])
sketch6.MapMode = "FlatFace"
sketch6.addGeometry([
    Part.Circle(Vector(78.174292, -99.783949, 0), Vector(0, 0, 1), 1.521747),
    Part.Circle(Vector(41.589004, -99.783949, 0), Vector(0, 0, 1), 1.524378),
    Part.Circle(Vector(41.589004, -136.30594, 0), Vector(0, 0, 1), 1.483081),
    Part.Circle(Vector(78.174292, -136.30594, 0), Vector(0, 0, 1), 1.509853),
], False)
sketch6.addConstraint([
    Sketcher.Constraint("Horizontal", 0, 3, 1, 3),
    Sketcher.Constraint("Horizontal", 2, 3, 3, 3),
    Sketcher.Constraint("Vertical", 1, 3, 2, 3),
    Sketcher.Constraint("Vertical", 0, 3, 3, 3),
    Sketcher.Constraint("Diameter", 2, 2.966162),
    Sketcher.Constraint("Diameter", 0, 3.043495),
    Sketcher.Constraint("Diameter", 1, 3.048756),
    Sketcher.Constraint("Diameter", 3, 3.019707),
    Sketcher.Constraint("DistanceY", 0, 3, -1, 1, 99.783949),
    Sketcher.Constraint("DistanceY", 2, 3, -1, 1, 136.30594),
    Sketcher.Constraint("DistanceX", 1, 3, 0, 3, 36.585288),
    Sketcher.Constraint("DistanceX", -1, 1, 0, 3, 78.174292),
])
pocket5 = body.newObject("PartDesign::Pocket", "Pocket004")
pocket5.Profile = sketch6
pocket5.Length = Q("0.2 in")
pocket5.Reversed = True

# Sketch on XY plane
sketch7 = body.newObject("Sketcher::SketchObject", "Sketch006")
sketch7.AttachmentSupport = (doc.getObject("XY_Plane"), [""])
sketch7.MapMode = "FlatFace"
sketch7.addGeometry([
    Part.Circle(Vector(78.112727, 136.214508, 0), Vector(0, 0, 1), 1.496376),
    Part.Circle(Vector(78.112727, 99.715329, 0), Vector(0, 0, 1), 1.496038),
    Part.Circle(Vector(41.590577, 99.715329, 0), Vector(0, 0, 1), 1.499292),
    Part.Circle(Vector(41.590577, 136.214508, 0), Vector(0, 0, 1), 1.440705),
], False)
sketch7.addConstraint([
    Sketcher.Constraint("Horizontal", 1, 3, 2, 3),
    Sketcher.Constraint("Horizontal", 0, 3, 3, 3),
    Sketcher.Constraint("Vertical", 0, 3, 1, 3),
    Sketcher.Constraint("Vertical", 2, 3, 3, 3),
    Sketcher.Constraint("Diameter", 0, 2.992751),
    Sketcher.Constraint("Diameter", 3, 2.881411),
    Sketcher.Constraint("Diameter", 1, 2.992076),
    Sketcher.Constraint("Diameter", 2, 2.998584),
    Sketcher.Constraint("DistanceY", -1, 1, 0, 3, 136.214508),
    Sketcher.Constraint("DistanceY", -1, 1, 1, 3, 99.715329),
    Sketcher.Constraint("DistanceX", 2, 3, 1, 3, 36.52215),
    Sketcher.Constraint("DistanceX", -1, 1, 0, 3, 78.112727),
])
pocket6 = body.newObject("PartDesign::Pocket", "Pocket005")
pocket6.Profile = sketch7
pocket6.Length = Q("0.2 in")
pocket6.Reversed = True

doc.recompute()
